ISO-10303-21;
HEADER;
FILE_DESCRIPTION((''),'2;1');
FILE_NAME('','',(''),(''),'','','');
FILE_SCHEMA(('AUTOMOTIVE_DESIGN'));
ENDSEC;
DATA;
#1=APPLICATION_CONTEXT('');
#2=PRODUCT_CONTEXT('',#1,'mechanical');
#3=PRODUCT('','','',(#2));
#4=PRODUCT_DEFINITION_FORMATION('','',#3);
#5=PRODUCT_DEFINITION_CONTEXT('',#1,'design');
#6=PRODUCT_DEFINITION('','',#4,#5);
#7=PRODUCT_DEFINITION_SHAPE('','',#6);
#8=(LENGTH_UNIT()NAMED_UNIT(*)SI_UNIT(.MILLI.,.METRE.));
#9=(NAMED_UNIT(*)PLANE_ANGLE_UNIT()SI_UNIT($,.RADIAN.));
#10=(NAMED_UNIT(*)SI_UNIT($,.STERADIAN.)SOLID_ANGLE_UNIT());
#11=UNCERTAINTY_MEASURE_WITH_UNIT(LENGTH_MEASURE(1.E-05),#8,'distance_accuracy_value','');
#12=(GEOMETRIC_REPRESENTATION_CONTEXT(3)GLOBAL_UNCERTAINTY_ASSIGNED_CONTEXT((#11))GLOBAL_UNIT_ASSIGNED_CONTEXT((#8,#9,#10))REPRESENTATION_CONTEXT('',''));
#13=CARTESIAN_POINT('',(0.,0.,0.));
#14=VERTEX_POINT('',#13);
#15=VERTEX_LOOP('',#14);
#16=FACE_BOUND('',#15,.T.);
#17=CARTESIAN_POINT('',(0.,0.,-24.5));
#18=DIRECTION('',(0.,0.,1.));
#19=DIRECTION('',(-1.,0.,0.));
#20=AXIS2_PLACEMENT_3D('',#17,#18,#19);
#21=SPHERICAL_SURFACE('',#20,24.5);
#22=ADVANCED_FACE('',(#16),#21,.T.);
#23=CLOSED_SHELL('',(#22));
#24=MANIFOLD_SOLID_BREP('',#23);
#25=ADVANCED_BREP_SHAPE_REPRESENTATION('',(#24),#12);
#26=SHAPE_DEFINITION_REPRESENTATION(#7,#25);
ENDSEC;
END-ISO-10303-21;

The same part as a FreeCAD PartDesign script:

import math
import FreeCAD as App
import Part
import Sketcher

V = App.Vector

doc = App.newDocument("Part")
params = doc.addObject("Spreadsheet::Sheet", "Params")
for row, (alias, value) in enumerate([
    ("sketch1_radius", "24.5 mm"),
    ("revolution_angle", "360 deg"),
], start=1):
    params.set(f"A{row}", alias)
    params.set(f"B{row}", "=" + value)
    params.setAlias(f"B{row}", alias)

body = doc.addObject("PartDesign::Body", "Body")

# Sketch on XZ plane
sketch1 = body.newObject("Sketcher::SketchObject", "Sketch")
sketch1.AttachmentSupport = (doc.getObject("XZ_Plane"), [""])
sketch1.MapMode = "FlatFace"
sketch1.addGeometry([
    Part.LineSegment(V(0, 0, 0), V(0, -49, 0)),
    Part.ArcOfCircle(Part.Circle(V(0, -24.5, 0), V(0, 0, 1), 24.5), math.radians(90), math.radians(270)),
], False)
sketch1.addConstraint([
    Sketcher.Constraint("Coincident", 0, 1, 1, 1),
    Sketcher.Constraint("Coincident", 1, 2, 0, 2),
    Sketcher.Constraint("Vertical", 0),
    Sketcher.Constraint("Coincident", 0, 1, -1, 1),
    Sketcher.Constraint("PointOnObject", 1, 3, -2),
    Sketcher.Constraint("Radius", 1, 24.5),
])
sketch1.setExpression("Constraints[5]", "Params.sketch1_radius")
revolution = body.newObject("PartDesign::Revolution", "Revolution")
revolution.Profile = sketch1
revolution.ReferenceAxis = (sketch1, ["V_Axis"])
revolution.setExpression("Angle", "Params.revolution_angle")

doc.recompute()
